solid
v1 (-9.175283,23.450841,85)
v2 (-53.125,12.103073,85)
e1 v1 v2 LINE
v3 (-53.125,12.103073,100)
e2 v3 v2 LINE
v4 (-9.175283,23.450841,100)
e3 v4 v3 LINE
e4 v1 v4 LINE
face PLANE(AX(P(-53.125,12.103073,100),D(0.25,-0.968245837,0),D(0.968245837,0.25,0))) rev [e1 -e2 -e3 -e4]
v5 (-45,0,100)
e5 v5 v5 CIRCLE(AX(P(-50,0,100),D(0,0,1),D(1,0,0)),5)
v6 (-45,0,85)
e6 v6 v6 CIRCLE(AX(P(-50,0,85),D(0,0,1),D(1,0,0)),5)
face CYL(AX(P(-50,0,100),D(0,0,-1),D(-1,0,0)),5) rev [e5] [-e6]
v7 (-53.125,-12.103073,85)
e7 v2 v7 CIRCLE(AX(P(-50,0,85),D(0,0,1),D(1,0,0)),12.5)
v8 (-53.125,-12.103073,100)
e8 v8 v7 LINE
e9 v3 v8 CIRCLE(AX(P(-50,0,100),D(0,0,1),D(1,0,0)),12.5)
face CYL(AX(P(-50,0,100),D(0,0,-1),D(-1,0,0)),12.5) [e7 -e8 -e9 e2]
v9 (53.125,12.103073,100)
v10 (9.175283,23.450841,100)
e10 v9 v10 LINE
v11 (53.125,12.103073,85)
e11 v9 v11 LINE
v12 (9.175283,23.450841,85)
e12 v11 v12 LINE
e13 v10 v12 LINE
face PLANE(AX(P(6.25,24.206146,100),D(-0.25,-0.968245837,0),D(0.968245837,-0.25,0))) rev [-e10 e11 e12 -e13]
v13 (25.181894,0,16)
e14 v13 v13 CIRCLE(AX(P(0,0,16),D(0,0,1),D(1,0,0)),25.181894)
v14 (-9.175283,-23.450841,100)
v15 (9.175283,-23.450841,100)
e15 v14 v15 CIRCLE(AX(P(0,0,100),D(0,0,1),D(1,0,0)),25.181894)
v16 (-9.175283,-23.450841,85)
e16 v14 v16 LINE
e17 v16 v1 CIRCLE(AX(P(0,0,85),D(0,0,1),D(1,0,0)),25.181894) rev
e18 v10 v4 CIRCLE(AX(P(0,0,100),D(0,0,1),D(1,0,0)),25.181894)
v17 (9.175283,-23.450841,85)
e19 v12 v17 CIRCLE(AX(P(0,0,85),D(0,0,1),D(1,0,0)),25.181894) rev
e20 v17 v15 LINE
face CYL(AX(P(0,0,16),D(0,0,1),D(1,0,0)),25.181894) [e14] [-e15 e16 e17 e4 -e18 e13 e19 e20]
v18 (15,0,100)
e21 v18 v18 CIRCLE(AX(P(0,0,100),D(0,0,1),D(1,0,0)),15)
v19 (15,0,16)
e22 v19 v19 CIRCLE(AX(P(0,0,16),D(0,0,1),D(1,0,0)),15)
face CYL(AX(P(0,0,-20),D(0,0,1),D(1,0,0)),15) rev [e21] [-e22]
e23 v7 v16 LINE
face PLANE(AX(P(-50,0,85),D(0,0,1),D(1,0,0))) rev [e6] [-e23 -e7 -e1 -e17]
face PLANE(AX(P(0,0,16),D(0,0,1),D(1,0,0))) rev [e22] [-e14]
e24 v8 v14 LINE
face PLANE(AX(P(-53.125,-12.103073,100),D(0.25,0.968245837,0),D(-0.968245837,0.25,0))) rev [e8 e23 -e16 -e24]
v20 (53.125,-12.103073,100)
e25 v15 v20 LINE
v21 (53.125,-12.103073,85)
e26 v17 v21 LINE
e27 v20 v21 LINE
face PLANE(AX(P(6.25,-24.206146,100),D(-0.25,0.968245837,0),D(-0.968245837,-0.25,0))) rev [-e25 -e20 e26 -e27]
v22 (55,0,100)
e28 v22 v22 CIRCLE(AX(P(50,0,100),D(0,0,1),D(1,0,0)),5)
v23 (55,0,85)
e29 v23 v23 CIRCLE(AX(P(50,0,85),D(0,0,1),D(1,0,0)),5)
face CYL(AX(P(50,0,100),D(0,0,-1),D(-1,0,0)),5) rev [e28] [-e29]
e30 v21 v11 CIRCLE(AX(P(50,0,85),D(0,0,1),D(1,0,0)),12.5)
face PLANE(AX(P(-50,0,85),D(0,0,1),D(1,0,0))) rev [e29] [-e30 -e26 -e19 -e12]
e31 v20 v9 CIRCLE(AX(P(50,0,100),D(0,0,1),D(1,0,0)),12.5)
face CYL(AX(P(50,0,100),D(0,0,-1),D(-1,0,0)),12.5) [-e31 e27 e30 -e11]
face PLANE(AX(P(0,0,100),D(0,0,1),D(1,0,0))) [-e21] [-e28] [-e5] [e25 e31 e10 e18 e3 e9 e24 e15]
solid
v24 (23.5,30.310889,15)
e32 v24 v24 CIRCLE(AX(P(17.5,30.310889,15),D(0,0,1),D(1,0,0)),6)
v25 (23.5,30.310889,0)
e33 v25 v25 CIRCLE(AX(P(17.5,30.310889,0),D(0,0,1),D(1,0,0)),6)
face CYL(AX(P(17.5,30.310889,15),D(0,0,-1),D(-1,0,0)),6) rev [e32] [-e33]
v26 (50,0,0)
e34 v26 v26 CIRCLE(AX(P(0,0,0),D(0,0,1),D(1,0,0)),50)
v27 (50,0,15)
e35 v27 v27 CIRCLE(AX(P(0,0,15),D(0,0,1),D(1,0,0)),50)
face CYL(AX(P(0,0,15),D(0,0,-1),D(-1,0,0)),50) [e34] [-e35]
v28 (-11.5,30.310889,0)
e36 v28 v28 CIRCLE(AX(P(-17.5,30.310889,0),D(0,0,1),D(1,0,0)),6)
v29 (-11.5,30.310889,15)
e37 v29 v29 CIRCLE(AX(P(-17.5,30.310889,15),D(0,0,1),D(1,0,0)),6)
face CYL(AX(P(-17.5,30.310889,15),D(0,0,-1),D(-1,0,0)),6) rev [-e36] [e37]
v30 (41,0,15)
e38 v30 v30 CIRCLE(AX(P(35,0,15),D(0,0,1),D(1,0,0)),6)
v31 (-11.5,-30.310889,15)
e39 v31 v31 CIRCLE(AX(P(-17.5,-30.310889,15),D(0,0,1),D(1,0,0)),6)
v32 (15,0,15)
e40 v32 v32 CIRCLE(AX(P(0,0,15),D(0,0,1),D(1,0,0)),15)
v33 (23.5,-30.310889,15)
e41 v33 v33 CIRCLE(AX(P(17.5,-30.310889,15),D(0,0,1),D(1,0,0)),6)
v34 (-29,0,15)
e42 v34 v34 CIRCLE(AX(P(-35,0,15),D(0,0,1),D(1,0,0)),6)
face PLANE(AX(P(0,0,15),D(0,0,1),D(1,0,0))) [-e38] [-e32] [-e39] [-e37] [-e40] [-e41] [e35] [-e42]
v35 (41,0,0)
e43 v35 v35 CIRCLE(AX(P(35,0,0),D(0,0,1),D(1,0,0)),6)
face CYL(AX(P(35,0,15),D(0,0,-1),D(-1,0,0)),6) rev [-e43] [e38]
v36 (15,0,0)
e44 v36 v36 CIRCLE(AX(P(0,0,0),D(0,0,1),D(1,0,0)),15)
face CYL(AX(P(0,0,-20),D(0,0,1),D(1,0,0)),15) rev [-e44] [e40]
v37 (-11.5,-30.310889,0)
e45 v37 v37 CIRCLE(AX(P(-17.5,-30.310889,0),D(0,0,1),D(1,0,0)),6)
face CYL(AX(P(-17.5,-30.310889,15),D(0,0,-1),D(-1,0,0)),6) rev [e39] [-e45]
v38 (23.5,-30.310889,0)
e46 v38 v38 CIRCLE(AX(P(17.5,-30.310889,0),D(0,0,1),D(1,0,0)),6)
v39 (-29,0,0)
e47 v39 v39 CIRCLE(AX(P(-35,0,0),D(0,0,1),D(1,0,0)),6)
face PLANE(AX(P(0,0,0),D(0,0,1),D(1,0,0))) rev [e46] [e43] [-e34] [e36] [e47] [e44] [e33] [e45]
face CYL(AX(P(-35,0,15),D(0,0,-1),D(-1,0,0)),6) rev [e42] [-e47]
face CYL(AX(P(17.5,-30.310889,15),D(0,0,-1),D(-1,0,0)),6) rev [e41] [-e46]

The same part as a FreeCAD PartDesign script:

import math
import FreeCAD as App
import Part
import Sketcher

V = App.Vector
Q = App.Units.Quantity

doc = App.newDocument("Part")
body = doc.addObject("PartDesign::Body", "Body")

# Sketch on XY plane
sketch1 = body.newObject("Sketcher::SketchObject", "Sketch")
sketch1.AttachmentSupport = (doc.getObject("XY_Plane"), [""])
sketch1.MapMode = "FlatFace"
sketch1.addGeometry([
    Part.Circle(V(0, 0, 0), V(0, 0, 1), 50),  # 0
    Part.Circle(V(-18, -30, 0), V(0, 0, 1), 6),  # 1
    Part.Circle(V(18, -30, 0), V(0, 0, 1), 6),  # 2
    Part.Circle(V(-35, 0, 0), V(0, 0, 1), 6),  # 3
    Part.Circle(V(-18, 30, 0), V(0, 0, 1), 6),  # 4
    Part.Circle(V(0, 0, 0), V(0, 0, 1), 15),  # 5
    Part.Circle(V(35, 0, 0), V(0, 0, 1), 6),  # 6
    Part.Circle(V(18, 30, 0), V(0, 0, 1), 6),  # 7
], False)
sketch1.addConstraint([
    Sketcher.Constraint("Coincident", 0, 3, -1, 1),
    Sketcher.Constraint("Coincident", 5, 3, -1, 1),
    Sketcher.Constraint("Equal", 1, 2),
    Sketcher.Constraint("Equal", 2, 3),
    Sketcher.Constraint("Equal", 3, 4),
    Sketcher.Constraint("Equal", 4, 6),
    Sketcher.Constraint("Equal", 6, 7),
    Sketcher.Constraint("Symmetric", 2, 3, 4, 3, -1, 1),
    Sketcher.Constraint("Symmetric", 3, 3, 6, 3, -1, 1),
    Sketcher.Constraint("Symmetric", 1, 3, 7, 3, -1, 1),
    Sketcher.Constraint("Symmetric", 1, 3, 2, 3, -2),
    Sketcher.Constraint("PointOnObject", 3, 3, -1),
    Sketcher.Constraint("Diameter", 0, Q("100 mm")),
    Sketcher.Constraint("Diameter", 1, Q("12 mm")),
    Sketcher.Constraint("Diameter", 5, Q("30 mm")),
    Sketcher.Constraint("DistanceX", 3, 3, -1, 1, Q("35 mm")),
    Sketcher.Constraint("DistanceX", 1, 3, 2, 3, Q("35 mm")),
    Sketcher.Constraint("DistanceY", 1, 3, -1, 1, Q("30.310889 mm")),
])
pad1 = body.newObject("PartDesign::Pad", "Pad")
pad1.Profile = sketch1
pad1.Length = 15

# Sketch on XY plane
sketch2 = body.newObject("Sketcher::SketchObject", "Sketch001")
sketch2.AttachmentSupport = (doc.getObject("XY_Plane"), [""])
sketch2.MapMode = "FlatFace"
sketch2.addGeometry(Part.Circle(V(0, 0, 0), V(0, 0, 1), 15), False)
sketch2.addConstraint([
    Sketcher.Constraint("Coincident", 0, 3, -1, 1),
    Sketcher.Constraint("Diameter", 0, Q("30 mm")),
])
pad2 = body.newObject("PartDesign::Pad", "Pad001")
pad2.Profile = sketch2
pad2.Length = 85
body2 = doc.addObject("PartDesign::Body", "Body001")

# Sketch on XY plane
sketch3 = body2.newObject("Sketcher::SketchObject", "Sketch002")
sketch3.AttachmentSupport = (doc.getObject("XY_Plane001"), [""])
sketch3.MapMode = "FlatFace"
sketch3.AttachmentOffset = App.Placement(V(0, 0, 85), App.Rotation())
sketch3.addGeometry([
    Part.LineSegment(V(-6, 24, 0), V(-53, 12, 0)),  # 0
    Part.ArcOfCircle(Part.Circle(V(-50, 0, 0), V(0, 0, 1), 12), math.radians(104), math.radians(256)),  # 1
    Part.LineSegment(V(-53, -12, 0), V(-6, -24, 0)),  # 2
    Part.ArcOfCircle(Part.Circle(V(0, 0, 0), V(0, 0, 1), 25), math.radians(-104), math.radians(-76)),  # 3
    Part.LineSegment(V(6, -24, 0), V(53, -12, 0)),  # 4
    Part.ArcOfCircle(Part.Circle(V(50, 0, 0), V(0, 0, 1), 12), math.radians(-76), math.radians(76)),  # 5
    Part.LineSegment(V(53, 12, 0), V(6, 24, 0)),  # 6
    Part.ArcOfCircle(Part.Circle(V(0, 0, 0), V(0, 0, 1), 25), math.radians(76), math.radians(104)),  # 7
    Part.Circle(V(50, 0, 0), V(0, 0, 1), 5),  # 8
    Part.Circle(V(0, 0, 0), V(0, 0, 1), 15),  # 9
    Part.Circle(V(-50, 0, 0), V(0, 0, 1), 5),  # 10
], False)
sketch3.addConstraint([
    Sketcher.Constraint("Tangent", 0, 2, 1, 1),
    Sketcher.Constraint("Tangent", 1, 2, 2, 1),
    Sketcher.Constraint("Tangent", 2, 2, 3, 1),
    Sketcher.Constraint("Tangent", 3, 2, 4, 1),
    Sketcher.Constraint("Tangent", 4, 2, 5, 1),
    Sketcher.Constraint("Tangent", 5, 2, 6, 1),
    Sketcher.Constraint("Tangent", 6, 2, 7, 1),
    Sketcher.Constraint("Tangent", 7, 2, 0, 1),
    Sketcher.Constraint("Coincident", 3, 3, -1, 1),
    Sketcher.Constraint("Coincident", 7, 3, -1, 1),
    Sketcher.Constraint("Coincident", 9, 3, -1, 1),
    Sketcher.Constraint("Coincident", 8, 3, 5, 3),
    Sketcher.Constraint("Coincident", 10, 3, 1, 3),
    Sketcher.Constraint("Equal", 1, 5),
    Sketcher.Constraint("Equal", 3, 7),
    Sketcher.Constraint("Equal", 8, 10),
    Sketcher.Constraint("Symmetric", 1, 3, 5, 3, -1, 1),
    Sketcher.Constraint("PointOnObject", 1, 3, -1),
    Sketcher.Constraint("Diameter", 8, Q("10 mm")),
    Sketcher.Constraint("Diameter", 9, Q("30 mm")),
    Sketcher.Constraint("Radius", 3, Q("25 mm")),
    Sketcher.Constraint("Radius", 1, Q("12.5 mm")),
    Sketcher.Constraint("DistanceX", 1, 3, -1, 1, Q("50 mm")),
])
pad3 = body2.newObject("PartDesign::Pad", "Pad002")
pad3.Profile = sketch3
pad3.Length = 15
body.AllowCompound = True
doc.recompute()

boolean = body.newObject("PartDesign::Boolean", "Boolean")
boolean.Type = "Fuse"
boolean.addObjects([body2])

# Sketch on XY plane
sketch4 = body.newObject("Sketcher::SketchObject", "Sketch003")
sketch4.AttachmentSupport = (doc.getObject("XY_Plane"), [""])
sketch4.MapMode = "FlatFace"
sketch4.AttachmentOffset = App.Placement(V(0, 0, 100), App.Rotation())
sketch4.addGeometry(Part.Circle(V(0, 0, 0), V(0, 0, 1), 25), False)
sketch4.addConstraint([
    Sketcher.Constraint("Coincident", 0, 3, -1, 1),
    Sketcher.Constraint("Diameter", 0, Q("50.363787 mm")),
])
pad4 = body.newObject("PartDesign::Pad", "Pad003")
pad4.Profile = sketch4
pad4.Length = 84
pad4.Reversed = True

# Sketch on XY plane
sketch5 = body.newObject("Sketcher::SketchObject", "Sketch004")
sketch5.AttachmentSupport = (doc.getObject("XY_Plane"), [""])
sketch5.MapMode = "FlatFace"
sketch5.AttachmentOffset = App.Placement(V(0, 0, 100), App.Rotation())
sketch5.addGeometry(Part.Circle(V(0, 0, 0), V(0, 0, 1), 15), False)
sketch5.addConstraint([
    Sketcher.Constraint("Coincident", 0, 3, -1, 1),
    Sketcher.Constraint("Diameter", 0, Q("30 mm")),
])
pocket1 = body.newObject("PartDesign::Pocket", "Pocket")
pocket1.Profile = sketch5
pocket1.Length = 120

doc.recompute()
